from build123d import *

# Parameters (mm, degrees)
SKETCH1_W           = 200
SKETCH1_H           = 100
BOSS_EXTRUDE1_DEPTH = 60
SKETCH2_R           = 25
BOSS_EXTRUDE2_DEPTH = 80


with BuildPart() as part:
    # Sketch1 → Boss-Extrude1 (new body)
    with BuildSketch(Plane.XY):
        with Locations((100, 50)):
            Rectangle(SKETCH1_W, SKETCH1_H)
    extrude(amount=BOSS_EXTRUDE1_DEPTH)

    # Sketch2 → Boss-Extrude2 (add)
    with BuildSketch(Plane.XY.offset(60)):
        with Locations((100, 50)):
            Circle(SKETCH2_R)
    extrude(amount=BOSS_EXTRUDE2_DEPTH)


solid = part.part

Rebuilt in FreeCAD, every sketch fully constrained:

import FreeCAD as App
import Part
import Sketcher

doc = App.newDocument("Part")
body = doc.addObject("PartDesign::Body", "Body")

# Sketch on XY plane
sketch1 = body.newObject("Sketcher::SketchObject", "Sketch")
sketch1.AttachmentSupport = (doc.getObject("XY_Plane"), [""])
sketch1.MapMode = "FlatFace"
sketch1.addGeometry([
    Part.LineSegment(App.Vector(0, 100, 0), App.Vector(0, 0, 0)),
    Part.LineSegment(App.Vector(0, 0, 0), App.Vector(200, 0, 0)),
    Part.LineSegment(App.Vector(200, 0, 0), App.Vector(200, 100, 0)),
    Part.LineSegment(App.Vector(200, 100, 0), App.Vector(0, 100, 0)),
], False)
sketch1.addConstraint([
    Sketcher.Constraint("Coincident", 0, 2, 1, 1),
    Sketcher.Constraint("Coincident", 1, 2, 2, 1),
    Sketcher.Constraint("Coincident", 2, 2, 3, 1),
    Sketcher.Constraint("Coincident", 3, 2, 0, 1),
    Sketcher.Constraint("Vertical", 0),
    Sketcher.Constraint("Horizontal", 1),
    Sketcher.Constraint("Vertical", 2),
    Sketcher.Constraint("Horizontal", 3),
    Sketcher.Constraint("Coincident", 0, 2, -1, 1),
    Sketcher.Constraint("DistanceX", 1, 1, 1, 2, 200.0),
    Sketcher.Constraint("DistanceY", 0, 2, 0, 1, 100.0),
])
pad1 = body.newObject("PartDesign::Pad", "Pad")
pad1.Profile = sketch1
pad1.Length = 60

# Sketch on XY plane
sketch2 = body.newObject("Sketcher::SketchObject", "Sketch001")
sketch2.AttachmentSupport = (doc.getObject("XY_Plane"), [""])
sketch2.MapMode = "FlatFace"
sketch2.AttachmentOffset = App.Placement(App.Vector(0, 0, 60), App.Rotation())
sketch2.addGeometry(Part.Circle(App.Vector(100, 50, 0), App.Vector(0, 0, 1), 25), False)
sketch2.addConstraint([
    Sketcher.Constraint("Diameter", 0, 50.0),
    Sketcher.Constraint("DistanceX", -1, 1, 0, 3, 100.0),
    Sketcher.Constraint("DistanceY", -1, 1, 0, 3, 50.0),
])
pad2 = body.newObject("PartDesign::Pad", "Pad001")
pad2.Profile = sketch2
pad2.Length = 80

doc.recompute()
